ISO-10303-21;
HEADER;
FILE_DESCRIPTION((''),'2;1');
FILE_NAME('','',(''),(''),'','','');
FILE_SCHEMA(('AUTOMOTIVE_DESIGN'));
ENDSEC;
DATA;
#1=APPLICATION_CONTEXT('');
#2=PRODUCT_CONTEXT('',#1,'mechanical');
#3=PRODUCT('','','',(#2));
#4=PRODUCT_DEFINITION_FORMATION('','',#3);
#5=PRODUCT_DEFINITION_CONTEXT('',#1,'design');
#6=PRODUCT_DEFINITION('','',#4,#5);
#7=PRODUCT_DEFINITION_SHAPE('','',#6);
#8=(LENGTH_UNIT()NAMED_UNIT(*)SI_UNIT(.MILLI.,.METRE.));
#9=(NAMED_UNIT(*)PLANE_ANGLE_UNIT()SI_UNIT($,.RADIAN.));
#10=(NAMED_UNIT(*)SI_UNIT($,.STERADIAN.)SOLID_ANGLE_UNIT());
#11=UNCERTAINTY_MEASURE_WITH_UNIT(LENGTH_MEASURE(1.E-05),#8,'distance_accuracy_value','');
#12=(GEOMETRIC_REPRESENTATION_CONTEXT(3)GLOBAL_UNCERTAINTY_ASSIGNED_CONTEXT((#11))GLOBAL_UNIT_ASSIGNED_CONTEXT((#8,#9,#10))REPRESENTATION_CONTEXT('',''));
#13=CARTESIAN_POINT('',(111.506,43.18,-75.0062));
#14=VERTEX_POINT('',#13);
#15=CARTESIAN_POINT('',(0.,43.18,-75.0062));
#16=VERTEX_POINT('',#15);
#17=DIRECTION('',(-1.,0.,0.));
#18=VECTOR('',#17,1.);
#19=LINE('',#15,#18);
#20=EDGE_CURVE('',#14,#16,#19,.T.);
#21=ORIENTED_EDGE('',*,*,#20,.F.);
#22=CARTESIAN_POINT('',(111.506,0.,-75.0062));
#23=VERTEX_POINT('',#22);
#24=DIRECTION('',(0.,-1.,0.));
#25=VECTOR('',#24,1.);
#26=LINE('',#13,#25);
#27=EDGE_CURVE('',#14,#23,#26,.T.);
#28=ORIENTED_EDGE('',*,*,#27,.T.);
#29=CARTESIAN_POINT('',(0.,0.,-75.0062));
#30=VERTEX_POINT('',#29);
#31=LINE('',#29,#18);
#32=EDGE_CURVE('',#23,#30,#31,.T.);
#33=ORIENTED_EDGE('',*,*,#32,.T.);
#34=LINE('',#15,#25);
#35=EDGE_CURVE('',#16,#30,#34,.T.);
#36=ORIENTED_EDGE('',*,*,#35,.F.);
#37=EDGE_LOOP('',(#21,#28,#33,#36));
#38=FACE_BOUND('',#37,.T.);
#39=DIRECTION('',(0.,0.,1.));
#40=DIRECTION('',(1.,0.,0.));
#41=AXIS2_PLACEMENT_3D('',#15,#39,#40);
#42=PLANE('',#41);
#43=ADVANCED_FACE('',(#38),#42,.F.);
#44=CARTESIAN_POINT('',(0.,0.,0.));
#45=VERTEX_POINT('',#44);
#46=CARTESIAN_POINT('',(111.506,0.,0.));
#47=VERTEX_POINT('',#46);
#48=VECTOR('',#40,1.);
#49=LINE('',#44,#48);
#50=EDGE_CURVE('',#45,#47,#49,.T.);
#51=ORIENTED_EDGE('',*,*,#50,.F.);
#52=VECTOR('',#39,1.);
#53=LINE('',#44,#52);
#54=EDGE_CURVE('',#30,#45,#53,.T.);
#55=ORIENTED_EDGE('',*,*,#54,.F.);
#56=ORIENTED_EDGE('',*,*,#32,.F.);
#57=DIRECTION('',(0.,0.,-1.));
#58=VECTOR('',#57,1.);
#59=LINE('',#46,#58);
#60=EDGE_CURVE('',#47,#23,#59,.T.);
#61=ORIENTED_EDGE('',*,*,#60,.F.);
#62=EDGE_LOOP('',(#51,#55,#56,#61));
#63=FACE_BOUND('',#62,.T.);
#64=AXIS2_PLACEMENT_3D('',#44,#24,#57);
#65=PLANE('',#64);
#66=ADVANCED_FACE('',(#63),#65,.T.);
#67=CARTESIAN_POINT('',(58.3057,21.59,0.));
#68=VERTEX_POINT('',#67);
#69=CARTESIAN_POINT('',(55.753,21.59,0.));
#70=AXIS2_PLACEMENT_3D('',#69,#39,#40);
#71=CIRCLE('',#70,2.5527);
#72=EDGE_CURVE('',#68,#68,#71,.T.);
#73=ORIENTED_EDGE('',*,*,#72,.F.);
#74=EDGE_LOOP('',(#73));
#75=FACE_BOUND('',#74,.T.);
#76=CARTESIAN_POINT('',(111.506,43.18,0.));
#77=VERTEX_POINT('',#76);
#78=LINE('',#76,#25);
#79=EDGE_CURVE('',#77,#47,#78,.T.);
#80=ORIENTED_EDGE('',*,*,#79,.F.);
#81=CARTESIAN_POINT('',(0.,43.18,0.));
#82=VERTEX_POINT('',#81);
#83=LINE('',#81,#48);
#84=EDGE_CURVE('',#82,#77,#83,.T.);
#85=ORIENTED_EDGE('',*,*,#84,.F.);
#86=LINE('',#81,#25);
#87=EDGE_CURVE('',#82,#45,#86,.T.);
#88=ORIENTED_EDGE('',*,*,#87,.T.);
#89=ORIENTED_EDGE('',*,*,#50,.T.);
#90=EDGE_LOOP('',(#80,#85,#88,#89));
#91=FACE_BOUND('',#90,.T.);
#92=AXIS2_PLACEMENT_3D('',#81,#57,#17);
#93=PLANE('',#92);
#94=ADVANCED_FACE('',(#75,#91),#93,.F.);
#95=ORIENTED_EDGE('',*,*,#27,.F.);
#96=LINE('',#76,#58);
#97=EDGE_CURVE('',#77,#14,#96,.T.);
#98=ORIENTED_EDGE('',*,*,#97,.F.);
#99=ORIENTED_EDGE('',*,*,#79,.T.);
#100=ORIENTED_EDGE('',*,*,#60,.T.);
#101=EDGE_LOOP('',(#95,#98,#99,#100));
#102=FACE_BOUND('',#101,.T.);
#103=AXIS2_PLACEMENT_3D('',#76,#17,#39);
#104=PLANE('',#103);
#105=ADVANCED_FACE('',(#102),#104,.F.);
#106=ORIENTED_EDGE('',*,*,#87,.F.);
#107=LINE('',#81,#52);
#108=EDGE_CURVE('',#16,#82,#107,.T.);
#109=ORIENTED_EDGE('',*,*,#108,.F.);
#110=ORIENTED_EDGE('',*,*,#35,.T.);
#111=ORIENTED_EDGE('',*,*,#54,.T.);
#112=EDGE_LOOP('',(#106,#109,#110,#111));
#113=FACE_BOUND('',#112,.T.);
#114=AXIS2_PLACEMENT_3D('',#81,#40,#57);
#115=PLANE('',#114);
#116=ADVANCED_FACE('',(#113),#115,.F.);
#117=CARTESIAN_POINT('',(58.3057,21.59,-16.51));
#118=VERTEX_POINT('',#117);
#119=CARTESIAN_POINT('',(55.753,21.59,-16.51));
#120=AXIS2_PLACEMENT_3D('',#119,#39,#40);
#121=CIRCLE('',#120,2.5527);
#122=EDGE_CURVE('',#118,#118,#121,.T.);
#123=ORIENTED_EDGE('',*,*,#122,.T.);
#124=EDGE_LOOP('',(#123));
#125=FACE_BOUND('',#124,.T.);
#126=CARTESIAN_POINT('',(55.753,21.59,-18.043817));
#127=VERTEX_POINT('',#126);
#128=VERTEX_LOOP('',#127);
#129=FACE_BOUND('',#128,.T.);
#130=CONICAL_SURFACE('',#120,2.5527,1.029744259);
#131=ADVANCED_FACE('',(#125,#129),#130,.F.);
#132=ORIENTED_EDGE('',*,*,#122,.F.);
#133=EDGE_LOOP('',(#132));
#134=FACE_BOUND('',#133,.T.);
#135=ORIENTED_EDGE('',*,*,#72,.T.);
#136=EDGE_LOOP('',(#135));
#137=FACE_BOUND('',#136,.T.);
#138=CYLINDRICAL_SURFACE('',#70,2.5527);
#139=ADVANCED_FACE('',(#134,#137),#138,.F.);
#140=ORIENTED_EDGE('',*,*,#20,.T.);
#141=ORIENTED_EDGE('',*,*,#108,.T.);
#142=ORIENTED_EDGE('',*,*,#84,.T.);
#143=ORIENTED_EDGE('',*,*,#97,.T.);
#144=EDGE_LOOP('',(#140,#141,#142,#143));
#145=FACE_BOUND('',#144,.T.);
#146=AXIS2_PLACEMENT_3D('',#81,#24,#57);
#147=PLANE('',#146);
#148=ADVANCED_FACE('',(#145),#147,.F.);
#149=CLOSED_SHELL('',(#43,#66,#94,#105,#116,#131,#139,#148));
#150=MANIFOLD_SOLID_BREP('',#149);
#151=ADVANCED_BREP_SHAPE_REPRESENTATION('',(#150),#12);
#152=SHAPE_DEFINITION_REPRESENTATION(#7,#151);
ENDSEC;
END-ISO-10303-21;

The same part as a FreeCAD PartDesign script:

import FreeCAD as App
import Part
import Sketcher

V = App.Vector
Q = App.Units.Quantity

doc = App.newDocument("Part")
body = doc.addObject("PartDesign::Body", "Body")

# Sketch on XZ plane
sketch1 = doc.addObject("Sketcher::SketchObject", "Sketch")
body.addObject(sketch1)
sketch1.AttachmentSupport = (doc.XZ_Plane, [""])
sketch1.MapMode = "FlatFace"
sketch1.addGeometry(Part.LineSegment(V(0, -75, 0), V(0, 0, 0)), False)
sketch1.addGeometry(Part.LineSegment(V(0, 0, 0), V(112, 0, 0)), False)
sketch1.addGeometry(Part.LineSegment(V(112, 0, 0), V(112, -75, 0)), False)
sketch1.addGeometry(Part.LineSegment(V(112, -75, 0), V(0, -75, 0)), False)
sketch1.addConstraint(Sketcher.Constraint("Coincident", 0, 2, 1, 1))
sketch1.addConstraint(Sketcher.Constraint("Coincident", 1, 2, 2, 1))
sketch1.addConstraint(Sketcher.Constraint("Coincident", 2, 2, 3, 1))
sketch1.addConstraint(Sketcher.Constraint("Coincident", 3, 2, 0, 1))
sketch1.addConstraint(Sketcher.Constraint("Vertical", 0))
sketch1.addConstraint(Sketcher.Constraint("Horizontal", 1))
sketch1.addConstraint(Sketcher.Constraint("Vertical", 2))
sketch1.addConstraint(Sketcher.Constraint("Horizontal", 3))
sketch1.addConstraint(Sketcher.Constraint("Coincident", 0, 2, -1, 1))
sketch1.addConstraint(Sketcher.Constraint("DistanceX", 1, 1, 1, 2, Q("4.39 in")))
sketch1.addConstraint(Sketcher.Constraint("DistanceY", 0, 1, 0, 2, Q("2.953 in")))
pad1 = doc.addObject("PartDesign::Pad", "Pad")
body.addObject(pad1)
pad1.Profile = sketch1
pad1.Length = Q("1.7 in")
pad1.Reversed = True

# Sketch on XY plane
sketch2 = doc.addObject("Sketcher::SketchObject", "Sketch001")
body.addObject(sketch2)
sketch2.AttachmentSupport = (doc.XY_Plane, [""])
sketch2.MapMode = "FlatFace"
sketch2.addGeometry(Part.Circle(V(55.8, 21.6, 0), V(0, 0, 1), 2.6), False)
sketch2.addConstraint(Sketcher.Constraint("Diameter", 0, Q("0.201 in")))
sketch2.addConstraint(Sketcher.Constraint("DistanceY", -1, 1, 0, 3, Q("0.85 in")))
sketch2.addConstraint(Sketcher.Constraint("DistanceX", -1, 1, 0, 3, Q("2.195 in")))
doc.recompute()
hole = doc.addObject("PartDesign::Hole", "Hole")
body.addObject(hole)
hole.Profile = sketch2
hole.ThreadType = "None"
hole.Diameter = Q("0.201 in")
hole.DepthType = "Dimension"
hole.Depth = Q("0.65 in")
hole.DrillPoint = "Angled"
hole.DrillPointAngle = 118

doc.recompute()
